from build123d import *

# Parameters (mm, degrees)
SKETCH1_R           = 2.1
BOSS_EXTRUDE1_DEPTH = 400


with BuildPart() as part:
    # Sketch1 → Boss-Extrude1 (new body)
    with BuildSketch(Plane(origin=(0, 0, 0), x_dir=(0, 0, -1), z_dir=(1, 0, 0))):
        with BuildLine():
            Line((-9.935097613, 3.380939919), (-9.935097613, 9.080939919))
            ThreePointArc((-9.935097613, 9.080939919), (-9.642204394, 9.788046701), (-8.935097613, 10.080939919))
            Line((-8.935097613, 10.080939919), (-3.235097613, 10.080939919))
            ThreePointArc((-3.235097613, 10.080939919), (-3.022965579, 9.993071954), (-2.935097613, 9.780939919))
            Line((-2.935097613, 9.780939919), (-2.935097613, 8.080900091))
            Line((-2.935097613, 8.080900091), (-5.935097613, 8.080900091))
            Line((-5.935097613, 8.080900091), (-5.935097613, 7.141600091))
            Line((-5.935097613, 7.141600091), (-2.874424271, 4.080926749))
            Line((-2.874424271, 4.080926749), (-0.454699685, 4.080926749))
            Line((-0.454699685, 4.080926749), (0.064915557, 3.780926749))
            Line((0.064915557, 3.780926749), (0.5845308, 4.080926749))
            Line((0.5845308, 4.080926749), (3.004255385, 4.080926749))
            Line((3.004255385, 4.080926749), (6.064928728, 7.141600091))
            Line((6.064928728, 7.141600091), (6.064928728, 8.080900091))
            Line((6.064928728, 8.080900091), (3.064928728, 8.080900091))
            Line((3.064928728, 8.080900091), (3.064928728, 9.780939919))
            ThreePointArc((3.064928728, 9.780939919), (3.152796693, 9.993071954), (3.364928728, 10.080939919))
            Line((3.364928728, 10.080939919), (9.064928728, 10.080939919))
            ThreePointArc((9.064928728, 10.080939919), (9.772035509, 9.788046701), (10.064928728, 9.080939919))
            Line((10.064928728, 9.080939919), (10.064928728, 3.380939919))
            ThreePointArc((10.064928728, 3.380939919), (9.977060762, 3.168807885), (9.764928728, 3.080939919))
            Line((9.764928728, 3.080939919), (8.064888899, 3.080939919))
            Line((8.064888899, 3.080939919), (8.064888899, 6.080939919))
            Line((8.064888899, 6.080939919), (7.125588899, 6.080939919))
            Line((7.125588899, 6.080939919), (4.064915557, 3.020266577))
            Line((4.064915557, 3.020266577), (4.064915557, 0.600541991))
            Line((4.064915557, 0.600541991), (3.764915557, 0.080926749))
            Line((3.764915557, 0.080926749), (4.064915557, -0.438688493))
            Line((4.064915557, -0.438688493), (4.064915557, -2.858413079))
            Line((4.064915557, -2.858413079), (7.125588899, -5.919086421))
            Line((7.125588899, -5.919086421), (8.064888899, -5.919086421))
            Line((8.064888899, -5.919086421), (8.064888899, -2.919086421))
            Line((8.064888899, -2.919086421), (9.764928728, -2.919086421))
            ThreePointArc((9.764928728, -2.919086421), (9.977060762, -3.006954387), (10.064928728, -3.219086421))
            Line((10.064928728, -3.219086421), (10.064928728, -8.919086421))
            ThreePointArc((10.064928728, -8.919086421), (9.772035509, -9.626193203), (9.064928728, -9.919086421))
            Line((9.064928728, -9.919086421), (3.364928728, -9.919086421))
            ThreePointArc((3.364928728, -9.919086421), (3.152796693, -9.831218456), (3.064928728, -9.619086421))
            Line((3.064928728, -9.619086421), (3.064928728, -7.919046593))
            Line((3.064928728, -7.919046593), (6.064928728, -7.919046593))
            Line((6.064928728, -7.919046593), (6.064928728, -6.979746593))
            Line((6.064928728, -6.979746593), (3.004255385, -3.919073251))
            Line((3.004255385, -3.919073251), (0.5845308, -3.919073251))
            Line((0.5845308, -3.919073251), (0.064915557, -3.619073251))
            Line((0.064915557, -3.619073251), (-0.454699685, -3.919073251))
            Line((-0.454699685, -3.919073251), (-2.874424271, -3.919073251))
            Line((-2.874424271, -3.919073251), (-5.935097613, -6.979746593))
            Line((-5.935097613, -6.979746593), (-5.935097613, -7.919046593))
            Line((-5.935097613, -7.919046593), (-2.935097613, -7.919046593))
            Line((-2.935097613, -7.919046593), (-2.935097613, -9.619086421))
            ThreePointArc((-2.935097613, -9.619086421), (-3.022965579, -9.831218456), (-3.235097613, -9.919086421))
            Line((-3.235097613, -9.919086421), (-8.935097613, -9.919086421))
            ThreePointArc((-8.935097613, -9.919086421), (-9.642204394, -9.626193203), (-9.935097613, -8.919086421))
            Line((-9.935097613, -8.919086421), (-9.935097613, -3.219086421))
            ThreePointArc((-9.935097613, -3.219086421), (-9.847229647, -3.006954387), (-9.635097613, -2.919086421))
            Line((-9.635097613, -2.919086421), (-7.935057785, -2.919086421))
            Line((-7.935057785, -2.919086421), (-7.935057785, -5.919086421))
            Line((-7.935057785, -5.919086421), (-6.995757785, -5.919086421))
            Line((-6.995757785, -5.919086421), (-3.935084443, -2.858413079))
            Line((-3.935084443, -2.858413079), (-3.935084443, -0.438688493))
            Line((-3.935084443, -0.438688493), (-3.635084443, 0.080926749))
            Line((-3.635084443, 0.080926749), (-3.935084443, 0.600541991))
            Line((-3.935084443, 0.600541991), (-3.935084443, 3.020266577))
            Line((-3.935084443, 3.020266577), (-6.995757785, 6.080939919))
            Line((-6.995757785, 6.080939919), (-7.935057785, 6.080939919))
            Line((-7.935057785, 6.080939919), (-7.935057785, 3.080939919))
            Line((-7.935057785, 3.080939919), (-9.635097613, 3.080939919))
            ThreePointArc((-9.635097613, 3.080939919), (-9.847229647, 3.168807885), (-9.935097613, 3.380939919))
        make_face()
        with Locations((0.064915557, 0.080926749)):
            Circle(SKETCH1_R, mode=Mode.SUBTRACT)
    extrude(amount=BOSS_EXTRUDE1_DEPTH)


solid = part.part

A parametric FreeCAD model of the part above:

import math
import FreeCAD as App
import Part
import Sketcher

V = App.Vector
Q = App.Units.Quantity

doc = App.newDocument("Part")
body = doc.addObject("PartDesign::Body", "Body")

# Sketch on YZ plane
sketch1 = doc.addObject("Sketcher::SketchObject", "Sketch")
body.addObject(sketch1)
sketch1.AttachmentSupport = (doc.YZ_Plane, [""])
sketch1.MapMode = "FlatFace"
sketch1.addGeometry([
    Part.LineSegment(V(9.08094, 9.935098, 0), V(3.38094, 9.935098, 0)),  # 0
    Part.ArcOfCircle(Part.Circle(V(3.38094, 9.635098, 0), V(0, 0, 1), 0.3), math.radians(90), math.radians(180)),  # 1
    Part.LineSegment(V(3.08094, 9.635098, 0), V(3.08094, 7.935058, 0)),  # 2
    Part.LineSegment(V(3.08094, 7.935058, 0), V(6.08094, 7.935058, 0)),  # 3
    Part.LineSegment(V(6.08094, 7.935058, 0), V(6.08094, 6.995758, 0)),  # 4
    Part.LineSegment(V(6.08094, 6.995758, 0), V(3.020267, 3.935084, 0)),  # 5
    Part.LineSegment(V(3.020267, 3.935084, 0), V(0.600542, 3.935084, 0)),  # 6
    Part.LineSegment(V(0.600542, 3.935084, 0), V(0.080927, 3.635084, 0)),  # 7
    Part.LineSegment(V(0.080927, 3.635084, 0), V(-0.438688, 3.935084, 0)),  # 8
    Part.LineSegment(V(-0.438688, 3.935084, 0), V(-2.858413, 3.935084, 0)),  # 9
    Part.LineSegment(V(-2.858413, 3.935084, 0), V(-5.919086, 6.995758, 0)),  # 10
    Part.LineSegment(V(-5.919086, 6.995758, 0), V(-5.919086, 7.935058, 0)),  # 11
    Part.LineSegment(V(-5.919086, 7.935058, 0), V(-2.919086, 7.935058, 0)),  # 12
    Part.LineSegment(V(-2.919086, 7.935058, 0), V(-2.919086, 9.635098, 0)),  # 13
    Part.ArcOfCircle(Part.Circle(V(-3.219086, 9.635098, 0), V(0, 0, 1), 0.3), math.radians(0), math.radians(90)),  # 14
    Part.LineSegment(V(-3.219086, 9.935098, 0), V(-8.919086, 9.935098, 0)),  # 15
    Part.ArcOfCircle(Part.Circle(V(-8.919086, 8.935098, 0), V(0, 0, 1), 1), math.radians(90), math.radians(180)),  # 16
    Part.LineSegment(V(-9.919086, 8.935098, 0), V(-9.919086, 3.235098, 0)),  # 17
    Part.ArcOfCircle(Part.Circle(V(-9.619086, 3.235098, 0), V(0, 0, 1), 0.3), math.radians(180), math.radians(270)),  # 18
    Part.LineSegment(V(-9.619086, 2.935098, 0), V(-7.919047, 2.935098, 0)),  # 19
    Part.LineSegment(V(-7.919047, 2.935098, 0), V(-7.919047, 5.935098, 0)),  # 20
    Part.LineSegment(V(-7.919047, 5.935098, 0), V(-6.979747, 5.935098, 0)),  # 21
    Part.LineSegment(V(-6.979747, 5.935098, 0), V(-3.919073, 2.874424, 0)),  # 22
    Part.LineSegment(V(-3.919073, 2.874424, 0), V(-3.919073, 0.4547, 0)),  # 23
    Part.LineSegment(V(-3.919073, 0.4547, 0), V(-3.619073, -0.064916, 0)),  # 24
    Part.LineSegment(V(-3.619073, -0.064916, 0), V(-3.919073, -0.584531, 0)),  # 25
    Part.LineSegment(V(-3.919073, -0.584531, 0), V(-3.919073, -3.004255, 0)),  # 26
    Part.LineSegment(V(-3.919073, -3.004255, 0), V(-6.979747, -6.064929, 0)),  # 27
    Part.LineSegment(V(-6.979747, -6.064929, 0), V(-7.919047, -6.064929, 0)),  # 28
    Part.LineSegment(V(-7.919047, -6.064929, 0), V(-7.919047, -3.064929, 0)),  # 29
    Part.LineSegment(V(-7.919047, -3.064929, 0), V(-9.619086, -3.064929, 0)),  # 30
    Part.ArcOfCircle(Part.Circle(V(-9.619086, -3.364929, 0), V(0, 0, 1), 0.3), math.radians(90), math.radians(180)),  # 31
    Part.LineSegment(V(-9.919086, -3.364929, 0), V(-9.919086, -9.064929, 0)),  # 32
    Part.ArcOfCircle(Part.Circle(V(-8.919086, -9.064929, 0), V(0, 0, 1), 1), math.radians(180), math.radians(270)),  # 33
    Part.LineSegment(V(-8.919086, -10.064929, 0), V(-3.219086, -10.064929, 0)),  # 34
    Part.ArcOfCircle(Part.Circle(V(-3.219086, -9.764929, 0), V(0, 0, 1), 0.3), math.radians(-90), math.radians(0)),  # 35
    Part.LineSegment(V(-2.919086, -9.764929, 0), V(-2.919086, -8.064889, 0)),  # 36
    Part.LineSegment(V(-2.919086, -8.064889, 0), V(-5.919086, -8.064889, 0)),  # 37
    Part.LineSegment(V(-5.919086, -8.064889, 0), V(-5.919086, -7.125589, 0)),  # 38
    Part.LineSegment(V(-5.919086, -7.125589, 0), V(-2.858413, -4.064916, 0)),  # 39
    Part.LineSegment(V(-2.858413, -4.064916, 0), V(-0.438688, -4.064916, 0)),  # 40
    Part.LineSegment(V(-0.438688, -4.064916, 0), V(0.080927, -3.764916, 0)),  # 41
    Part.LineSegment(V(0.080927, -3.764916, 0), V(0.600542, -4.064916, 0)),  # 42
    Part.LineSegment(V(0.600542, -4.064916, 0), V(3.020267, -4.064916, 0)),  # 43
    Part.LineSegment(V(3.020267, -4.064916, 0), V(6.08094, -7.125589, 0)),  # 44
    Part.LineSegment(V(6.08094, -7.125589, 0), V(6.08094, -8.064889, 0)),  # 45
    Part.LineSegment(V(6.08094, -8.064889, 0), V(3.08094, -8.064889, 0)),  # 46
    Part.LineSegment(V(3.08094, -8.064889, 0), V(3.08094, -9.764929, 0)),  # 47
    Part.ArcOfCircle(Part.Circle(V(3.38094, -9.764929, 0), V(0, 0, 1), 0.3), math.radians(-180), math.radians(-90)),  # 48
    Part.LineSegment(V(3.38094, -10.064929, 0), V(9.08094, -10.064929, 0)),  # 49
    Part.ArcOfCircle(Part.Circle(V(9.08094, -9.064929, 0), V(0, 0, 1), 1), math.radians(-90), math.radians(0)),  # 50
    Part.LineSegment(V(10.08094, -9.064929, 0), V(10.08094, -3.364929, 0)),  # 51
    Part.ArcOfCircle(Part.Circle(V(9.78094, -3.364929, 0), V(0, 0, 1), 0.3), math.radians(0), math.radians(90)),  # 52
    Part.LineSegment(V(9.78094, -3.064929, 0), V(8.0809, -3.064929, 0)),  # 53
    Part.LineSegment(V(8.0809, -3.064929, 0), V(8.0809, -6.064929, 0)),  # 54
    Part.LineSegment(V(8.0809, -6.064929, 0), V(7.1416, -6.064929, 0)),  # 55
    Part.LineSegment(V(7.1416, -6.064929, 0), V(4.080927, -3.004255, 0)),  # 56
    Part.LineSegment(V(4.080927, -3.004255, 0), V(4.080927, -0.584531, 0)),  # 57
    Part.LineSegment(V(4.080927, -0.584531, 0), V(3.780927, -0.064916, 0)),  # 58
    Part.LineSegment(V(3.780927, -0.064916, 0), V(4.080927, 0.4547, 0)),  # 59
    Part.LineSegment(V(4.080927, 0.4547, 0), V(4.080927, 2.874424, 0)),  # 60
    Part.LineSegment(V(4.080927, 2.874424, 0), V(7.1416, 5.935098, 0)),  # 61
    Part.LineSegment(V(7.1416, 5.935098, 0), V(8.0809, 5.935098, 0)),  # 62
    Part.LineSegment(V(8.0809, 5.935098, 0), V(8.0809, 2.935098, 0)),  # 63
    Part.LineSegment(V(8.0809, 2.935098, 0), V(9.78094, 2.935098, 0)),  # 64
    Part.ArcOfCircle(Part.Circle(V(9.78094, 3.235098, 0), V(0, 0, 1), 0.3), math.radians(-90), math.radians(0)),  # 65
    Part.LineSegment(V(10.08094, 3.235098, 0), V(10.08094, 8.935098, 0)),  # 66
    Part.ArcOfCircle(Part.Circle(V(9.08094, 8.935098, 0), V(0, 0, 1), 1), math.radians(0), math.radians(90)),  # 67
    Part.Circle(V(0.080927, -0.064916, 0), V(0, 0, 1), 2.1),  # 68
], False)
sketch1.addConstraint([
    Sketcher.Constraint("Tangent", 0, 2, 1, 1),
    Sketcher.Constraint("Tangent", 1, 2, 2, 1),
    Sketcher.Constraint("Coincident", 2, 2, 3, 1),
    Sketcher.Constraint("Coincident", 3, 2, 4, 1),
    Sketcher.Constraint("Coincident", 4, 2, 5, 1),
    Sketcher.Constraint("Coincident", 5, 2, 6, 1),
    Sketcher.Constraint("Coincident", 6, 2, 7, 1),
    Sketcher.Constraint("Coincident", 7, 2, 8, 1),
    Sketcher.Constraint("Coincident", 8, 2, 9, 1),
    Sketcher.Constraint("Coincident", 9, 2, 10, 1),
    Sketcher.Constraint("Coincident", 10, 2, 11, 1),
    Sketcher.Constraint("Coincident", 11, 2, 12, 1),
    Sketcher.Constraint("Coincident", 12, 2, 13, 1),
    Sketcher.Constraint("Tangent", 13, 2, 14, 1),
    Sketcher.Constraint("Tangent", 14, 2, 15, 1),
    Sketcher.Constraint("Tangent", 15, 2, 16, 1),
    Sketcher.Constraint("Tangent", 16, 2, 17, 1),
    Sketcher.Constraint("Tangent", 17, 2, 18, 1),
    Sketcher.Constraint("Tangent", 18, 2, 19, 1),
    Sketcher.Constraint("Coincident", 19, 2, 20, 1),
    Sketcher.Constraint("Coincident", 20, 2, 21, 1),
    Sketcher.Constraint("Coincident", 21, 2, 22, 1),
    Sketcher.Constraint("Coincident", 22, 2, 23, 1),
    Sketcher.Constraint("Coincident", 23, 2, 24, 1),
    Sketcher.Constraint("Coincident", 24, 2, 25, 1),
    Sketcher.Constraint("Coincident", 25, 2, 26, 1),
    Sketcher.Constraint("Coincident", 26, 2, 27, 1),
    Sketcher.Constraint("Coincident", 27, 2, 28, 1),
    Sketcher.Constraint("Coincident", 28, 2, 29, 1),
    Sketcher.Constraint("Coincident", 29, 2, 30, 1),
    Sketcher.Constraint("Tangent", 30, 2, 31, 1),
    Sketcher.Constraint("Tangent", 31, 2, 32, 1),
    Sketcher.Constraint("Tangent", 32, 2, 33, 1),
    Sketcher.Constraint("Tangent", 33, 2, 34, 1),
    Sketcher.Constraint("Tangent", 34, 2, 35, 1),
    Sketcher.Constraint("Tangent", 35, 2, 36, 1),
    Sketcher.Constraint("Coincident", 36, 2, 37, 1),
    Sketcher.Constraint("Coincident", 37, 2, 38, 1),
    Sketcher.Constraint("Coincident", 38, 2, 39, 1),
    Sketcher.Constraint("Coincident", 39, 2, 40, 1),
    Sketcher.Constraint("Coincident", 40, 2, 41, 1),
    Sketcher.Constraint("Coincident", 41, 2, 42, 1),
    Sketcher.Constraint("Coincident", 42, 2, 43, 1),
    Sketcher.Constraint("Coincident", 43, 2, 44, 1),
    Sketcher.Constraint("Coincident", 44, 2, 45, 1),
    Sketcher.Constraint("Coincident", 45, 2, 46, 1),
    Sketcher.Constraint("Coincident", 46, 2, 47, 1),
    Sketcher.Constraint("Tangent", 47, 2, 48, 1),
    Sketcher.Constraint("Tangent", 48, 2, 49, 1),
    Sketcher.Constraint("Tangent", 49, 2, 50, 1),
    Sketcher.Constraint("Tangent", 50, 2, 51, 1),
    Sketcher.Constraint("Tangent", 51, 2, 52, 1),
    Sketcher.Constraint("Tangent", 52, 2, 53, 1),
    Sketcher.Constraint("Coincident", 53, 2, 54, 1),
    Sketcher.Constraint("Coincident", 54, 2, 55, 1),
    Sketcher.Constraint("Coincident", 55, 2, 56, 1),
    Sketcher.Constraint("Coincident", 56, 2, 57, 1),
    Sketcher.Constraint("Coincident", 57, 2, 58, 1),
    Sketcher.Constraint("Coincident", 58, 2, 59, 1),
    Sketcher.Constraint("Coincident", 59, 2, 60, 1),
    Sketcher.Constraint("Coincident", 60, 2, 61, 1),
    Sketcher.Constraint("Coincident", 61, 2, 62, 1),
    Sketcher.Constraint("Coincident", 62, 2, 63, 1),
    Sketcher.Constraint("Coincident", 63, 2, 64, 1),
    Sketcher.Constraint("Tangent", 64, 2, 65, 1),
    Sketcher.Constraint("Tangent", 65, 2, 66, 1),
    Sketcher.Constraint("Tangent", 66, 2, 67, 1),
    Sketcher.Constraint("Tangent", 67, 2, 0, 1),
    Sketcher.Constraint("Horizontal", 0),
    Sketcher.Constraint("Vertical", 2),
    Sketcher.Constraint("Horizontal", 3),
    Sketcher.Constraint("Vertical", 4),
    Sketcher.Constraint("Horizontal", 6),
    Sketcher.Constraint("Horizontal", 9),
    Sketcher.Constraint("Vertical", 11),
    Sketcher.Constraint("Horizontal", 12),
    Sketcher.Constraint("Vertical", 13),
    Sketcher.Constraint("Horizontal", 15),
    Sketcher.Constraint("Vertical", 17),
    Sketcher.Constraint("Horizontal", 19),
    Sketcher.Constraint("Vertical", 20),
    Sketcher.Constraint("Horizontal", 21),
    Sketcher.Constraint("Vertical", 23),
    Sketcher.Constraint("Vertical", 26),
    Sketcher.Constraint("Horizontal", 28),
    Sketcher.Constraint("Vertical", 29),
    Sketcher.Constraint("Horizontal", 30),
    Sketcher.Constraint("Vertical", 32),
    Sketcher.Constraint("Horizontal", 34),
    Sketcher.Constraint("Vertical", 36),
    Sketcher.Constraint("Horizontal", 37),
    Sketcher.Constraint("Vertical", 38),
    Sketcher.Constraint("Horizontal", 40),
    Sketcher.Constraint("Horizontal", 43),
    Sketcher.Constraint("Vertical", 45),
    Sketcher.Constraint("Horizontal", 46),
    Sketcher.Constraint("Vertical", 47),
    Sketcher.Constraint("Horizontal", 49),
    Sketcher.Constraint("Vertical", 51),
    Sketcher.Constraint("Horizontal", 53),
    Sketcher.Constraint("Vertical", 54),
    Sketcher.Constraint("Horizontal", 55),
    Sketcher.Constraint("Vertical", 57),
    Sketcher.Constraint("Vertical", 60),
    Sketcher.Constraint("Horizontal", 62),
    Sketcher.Constraint("Vertical", 63),
    Sketcher.Constraint("Horizontal", 64),
    Sketcher.Constraint("Vertical", 66),
    Sketcher.Constraint("Equal", 1, 14),
    Sketcher.Constraint("Equal", 14, 18),
    Sketcher.Constraint("Equal", 18, 31),
    Sketcher.Constraint("Equal", 16, 33),
    Sketcher.Constraint("Equal", 31, 35),
    Sketcher.Constraint("Equal", 35, 48),
    Sketcher.Constraint("Equal", 33, 50),
    Sketcher.Constraint("Equal", 48, 52),
    Sketcher.Constraint("Equal", 52, 65),
    Sketcher.Constraint("Equal", 50, 67),
    Sketcher.Constraint("Perpendicular", 5, 10),
    Sketcher.Constraint("Parallel", 10, 22),
    Sketcher.Constraint("Perpendicular", 7, 24),
    Sketcher.Constraint("Perpendicular", 8, 25),
    Sketcher.Constraint("Perpendicular", 22, 27),
    Sketcher.Constraint("Parallel", 27, 39),
    Sketcher.Constraint("Perpendicular", 24, 41),
    Sketcher.Constraint("Perpendicular", 25, 42),
    Sketcher.Constraint("Perpendicular", 39, 44),
    Sketcher.Constraint("Parallel", 44, 56),
    Sketcher.Constraint("Perpendicular", 41, 58),
    Sketcher.Constraint("Perpendicular", 42, 59),
    Sketcher.Constraint("Perpendicular", 56, 61),
    Sketcher.Constraint("Horizontal", 1, 3, 14, 3),
    Sketcher.Constraint("Horizontal", 35, 3, 48, 3),
    Sketcher.Constraint("Horizontal", 31, 3, 52, 3),
    Sketcher.Constraint("Horizontal", 18, 3, 65, 3),
    Sketcher.Constraint("Horizontal", 6, 2, 8, 2),
    Sketcher.Constraint("Horizontal", 4, 2, 10, 2),
    Sketcher.Constraint("Horizontal", 3, 2, 11, 2),
    Sketcher.Constraint("Horizontal", 68, 3, 24, 2),
    Sketcher.Constraint("Horizontal", 40, 2, 42, 2),
    Sketcher.Constraint("Horizontal", 38, 2, 44, 2),
    Sketcher.Constraint("Horizontal", 37, 2, 45, 2),
    Sketcher.Constraint("Horizontal", 28, 2, 54, 2),
    Sketcher.Constraint("Horizontal", 26, 2, 56, 2),
    Sketcher.Constraint("Horizontal", 25, 2, 57, 2),
    Sketcher.Constraint("Horizontal", 24, 2, 58, 2),
    Sketcher.Constraint("Horizontal", 23, 2, 59, 2),
    Sketcher.Constraint("Horizontal", 22, 2, 60, 2),
    Sketcher.Constraint("Horizontal", 21, 2, 61, 2),
    Sketcher.Constraint("Vertical", 18, 3, 31, 3),
    Sketcher.Constraint("Vertical", 14, 3, 35, 3),
    Sketcher.Constraint("Vertical", 1, 3, 48, 3),
    Sketcher.Constraint("Vertical", 52, 3, 65, 3),
    Sketcher.Constraint("Vertical", 68, 3, 7, 2),
    Sketcher.Constraint("Vertical", 23, 2, 25, 2),
    Sketcher.Constraint("Vertical", 21, 2, 27, 2),
    Sketcher.Constraint("Vertical", 20, 2, 28, 2),
    Sketcher.Constraint("Vertical", 11, 2, 37, 2),
    Sketcher.Constraint("Vertical", 9, 2, 39, 2),
    Sketcher.Constraint("Vertical", 8, 2, 40, 2),
    Sketcher.Constraint("Vertical", 7, 2, 41, 2),
    Sketcher.Constraint("Vertical", 6, 2, 42, 2),
    Sketcher.Constraint("Vertical", 5, 2, 43, 2),
    Sketcher.Constraint("Vertical", 4, 2, 44, 2),
    Sketcher.Constraint("Vertical", 54, 2, 62, 2),
    Sketcher.Constraint("Equal", 6, 9),
    Sketcher.Constraint("Equal", 3, 12),
    Sketcher.Constraint("Equal", 0, 15),
    Sketcher.Constraint("Equal", 30, 53),
    Sketcher.Constraint("Equal", 28, 55),
    Sketcher.Constraint("Equal", 64, 2),
    Sketcher.Constraint("Equal", 62, 4),
    Sketcher.Constraint("Equal", 49, 17),
    Sketcher.Constraint("Equal", 46, 20),
    Sketcher.Constraint("Equal", 43, 23),
    Sketcher.Constraint("Equal", 23, 26),
    Sketcher.Constraint("Equal", 20, 29),
    Sketcher.Constraint("Equal", 17, 32),
    Sketcher.Constraint("Equal", 13, 36),
    Sketcher.Constraint("Equal", 11, 38),
    Sketcher.Constraint("Equal", 10, 22),
    Sketcher.Constraint("Equal", 8, 24),
    Sketcher.Constraint("Radius", 16, Q("1 mm")),
    Sketcher.Constraint("Diameter", 68, Q("4.2 mm")),
    Sketcher.Constraint("Radius", 1, Q("0.3 mm")),
    Sketcher.Constraint("DistanceX", 3, 1, 3, 2, Q("3 mm")),
    Sketcher.Constraint("Angle", 7, Q("-150 deg")),
    Sketcher.Constraint("DistanceX", 0, 2, 0, 1, Q("5.7 mm")),
    Sketcher.Constraint("Distance", 7, Q("0.6 mm")),
    Sketcher.Constraint("DistanceX", 21, 1, 21, 2, Q("0.9393 mm")),
    Sketcher.Constraint("DistanceX", 19, 1, 19, 2, Q("1.70004 mm")),
    Sketcher.Constraint("DistanceY", -1, 1, 23, 2, Q("0.4547 mm")),
    Sketcher.Constraint("DistanceX", -1, 1, 53, 2, Q("8.0809 mm")),
    Sketcher.Constraint("DistanceX", 6, 2, 6, 1, Q("2.419725 mm")),
    Sketcher.Constraint("DistanceY", 31, 3, -1, 1, Q("3.364929 mm")),
])
pad1 = doc.addObject("PartDesign::Pad", "Pad")
body.addObject(pad1)
pad1.Profile = sketch1
pad1.Length = 400

doc.recompute()
